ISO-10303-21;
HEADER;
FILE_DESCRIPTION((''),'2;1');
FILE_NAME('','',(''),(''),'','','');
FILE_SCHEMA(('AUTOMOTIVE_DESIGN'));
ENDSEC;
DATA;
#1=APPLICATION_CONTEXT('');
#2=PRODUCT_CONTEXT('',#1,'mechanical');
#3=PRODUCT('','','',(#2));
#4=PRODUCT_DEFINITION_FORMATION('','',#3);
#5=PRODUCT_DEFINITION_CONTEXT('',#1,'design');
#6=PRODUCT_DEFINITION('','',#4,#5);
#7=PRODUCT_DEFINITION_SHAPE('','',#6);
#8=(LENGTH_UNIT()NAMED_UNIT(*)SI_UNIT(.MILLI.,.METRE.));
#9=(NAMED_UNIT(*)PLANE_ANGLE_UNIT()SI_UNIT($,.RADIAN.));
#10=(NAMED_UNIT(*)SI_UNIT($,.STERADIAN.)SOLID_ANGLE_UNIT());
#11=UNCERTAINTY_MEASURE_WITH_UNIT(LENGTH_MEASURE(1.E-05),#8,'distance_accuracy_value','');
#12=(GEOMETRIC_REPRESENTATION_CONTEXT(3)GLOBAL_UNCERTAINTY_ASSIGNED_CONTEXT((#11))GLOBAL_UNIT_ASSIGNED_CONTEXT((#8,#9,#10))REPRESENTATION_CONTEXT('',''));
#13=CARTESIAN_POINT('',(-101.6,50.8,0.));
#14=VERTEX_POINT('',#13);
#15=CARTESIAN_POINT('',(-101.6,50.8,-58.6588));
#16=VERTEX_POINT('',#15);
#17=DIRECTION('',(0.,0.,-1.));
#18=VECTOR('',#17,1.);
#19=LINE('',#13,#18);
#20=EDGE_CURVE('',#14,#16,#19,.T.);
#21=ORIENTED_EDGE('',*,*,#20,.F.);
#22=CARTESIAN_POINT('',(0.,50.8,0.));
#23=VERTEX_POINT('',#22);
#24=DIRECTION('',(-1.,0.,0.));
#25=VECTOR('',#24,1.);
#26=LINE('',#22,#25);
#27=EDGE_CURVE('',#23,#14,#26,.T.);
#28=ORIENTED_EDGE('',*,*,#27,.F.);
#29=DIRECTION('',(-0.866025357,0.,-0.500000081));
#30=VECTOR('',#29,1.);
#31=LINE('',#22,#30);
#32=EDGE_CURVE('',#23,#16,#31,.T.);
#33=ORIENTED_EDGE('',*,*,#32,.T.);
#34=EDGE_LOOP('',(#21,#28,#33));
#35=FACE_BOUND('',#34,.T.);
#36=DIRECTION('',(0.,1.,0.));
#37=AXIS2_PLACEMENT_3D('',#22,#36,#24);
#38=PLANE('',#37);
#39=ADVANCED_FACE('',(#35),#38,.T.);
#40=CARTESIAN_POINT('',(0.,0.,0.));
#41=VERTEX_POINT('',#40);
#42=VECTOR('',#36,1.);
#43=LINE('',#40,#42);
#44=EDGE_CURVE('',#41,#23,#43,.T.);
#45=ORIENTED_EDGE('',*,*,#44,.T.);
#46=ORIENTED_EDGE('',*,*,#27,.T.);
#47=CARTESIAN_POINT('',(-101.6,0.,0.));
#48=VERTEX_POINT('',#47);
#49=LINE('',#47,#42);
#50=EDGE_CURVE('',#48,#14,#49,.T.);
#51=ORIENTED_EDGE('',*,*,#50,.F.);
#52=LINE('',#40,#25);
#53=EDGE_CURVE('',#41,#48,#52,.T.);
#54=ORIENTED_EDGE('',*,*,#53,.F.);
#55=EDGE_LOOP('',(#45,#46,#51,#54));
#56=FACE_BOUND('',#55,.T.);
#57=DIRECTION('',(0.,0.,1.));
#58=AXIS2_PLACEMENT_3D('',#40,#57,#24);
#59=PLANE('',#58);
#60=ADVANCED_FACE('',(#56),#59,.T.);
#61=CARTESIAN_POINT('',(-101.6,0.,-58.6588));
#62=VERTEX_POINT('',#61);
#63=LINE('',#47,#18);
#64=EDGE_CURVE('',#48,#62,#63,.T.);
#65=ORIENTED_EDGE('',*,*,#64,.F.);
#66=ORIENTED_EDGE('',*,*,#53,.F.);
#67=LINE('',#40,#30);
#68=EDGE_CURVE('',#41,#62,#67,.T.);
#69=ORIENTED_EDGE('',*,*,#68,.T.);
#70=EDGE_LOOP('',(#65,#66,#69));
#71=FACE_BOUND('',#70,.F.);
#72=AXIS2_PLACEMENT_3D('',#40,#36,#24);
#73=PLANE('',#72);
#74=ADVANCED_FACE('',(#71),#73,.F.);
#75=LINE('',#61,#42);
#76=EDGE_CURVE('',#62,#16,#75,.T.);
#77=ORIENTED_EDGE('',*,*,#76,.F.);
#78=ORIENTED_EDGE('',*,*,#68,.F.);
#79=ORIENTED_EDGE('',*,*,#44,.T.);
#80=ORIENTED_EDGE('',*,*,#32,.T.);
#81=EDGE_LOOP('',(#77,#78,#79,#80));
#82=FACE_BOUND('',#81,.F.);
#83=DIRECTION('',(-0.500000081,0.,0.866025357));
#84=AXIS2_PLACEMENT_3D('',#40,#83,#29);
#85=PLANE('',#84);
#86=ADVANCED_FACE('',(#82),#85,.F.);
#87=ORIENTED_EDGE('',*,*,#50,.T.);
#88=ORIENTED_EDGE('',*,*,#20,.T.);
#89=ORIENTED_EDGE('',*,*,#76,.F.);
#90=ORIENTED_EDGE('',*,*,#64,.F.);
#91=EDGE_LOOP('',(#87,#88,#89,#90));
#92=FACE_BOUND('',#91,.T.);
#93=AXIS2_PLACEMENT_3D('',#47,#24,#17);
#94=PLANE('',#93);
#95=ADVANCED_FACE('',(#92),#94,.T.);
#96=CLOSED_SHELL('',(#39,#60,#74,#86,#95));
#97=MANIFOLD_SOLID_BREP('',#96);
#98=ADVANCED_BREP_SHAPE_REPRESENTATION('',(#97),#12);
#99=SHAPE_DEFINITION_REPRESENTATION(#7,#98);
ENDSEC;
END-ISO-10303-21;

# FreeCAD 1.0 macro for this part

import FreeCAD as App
import Part
import Sketcher
Q = App.Units.Quantity


def add_polygon(sketch, points):
    """Adds a closed chain of lines whose ends are joined by coincident constraints."""
    first, n = sketch.GeometryCount, len(points)
    for a, b in zip(points, points[1:] + points[:1]):
        sketch.addGeometry(Part.LineSegment(App.Vector(*a, 0), App.Vector(*b, 0)), False)
    for i in range(n):
        sketch.addConstraint(Sketcher.Constraint("Coincident", first + i, 2, first + (i + 1) % n, 1))

doc = App.newDocument("Part")
body = doc.addObject("PartDesign::Body", "Body")

# Sketch on XZ plane
sketch1 = doc.addObject("Sketcher::SketchObject", "Sketch")
body.addObject(sketch1)
sketch1.AttachmentSupport = (doc.XZ_Plane, [""])
sketch1.MapMode = "FlatFace"
add_polygon(sketch1, [(-102, 0), (0, 0), (-102, -59)])  # lines 0-2
sketch1.addConstraint([
    Sketcher.Constraint("Horizontal", 0),
    Sketcher.Constraint("Vertical", 2),
    Sketcher.Constraint("Coincident", 0, 2, -1, 1),
    Sketcher.Constraint("DistanceX", 0, 1, 0, 2, Q("4 in")),
    Sketcher.Constraint("Angle", 1, Q("-150 deg")),
])
pad1 = doc.addObject("PartDesign::Pad", "Pad")
body.addObject(pad1)
pad1.Profile = sketch1
pad1.Length = Q("2 in")
pad1.Reversed = True

doc.recompute()
